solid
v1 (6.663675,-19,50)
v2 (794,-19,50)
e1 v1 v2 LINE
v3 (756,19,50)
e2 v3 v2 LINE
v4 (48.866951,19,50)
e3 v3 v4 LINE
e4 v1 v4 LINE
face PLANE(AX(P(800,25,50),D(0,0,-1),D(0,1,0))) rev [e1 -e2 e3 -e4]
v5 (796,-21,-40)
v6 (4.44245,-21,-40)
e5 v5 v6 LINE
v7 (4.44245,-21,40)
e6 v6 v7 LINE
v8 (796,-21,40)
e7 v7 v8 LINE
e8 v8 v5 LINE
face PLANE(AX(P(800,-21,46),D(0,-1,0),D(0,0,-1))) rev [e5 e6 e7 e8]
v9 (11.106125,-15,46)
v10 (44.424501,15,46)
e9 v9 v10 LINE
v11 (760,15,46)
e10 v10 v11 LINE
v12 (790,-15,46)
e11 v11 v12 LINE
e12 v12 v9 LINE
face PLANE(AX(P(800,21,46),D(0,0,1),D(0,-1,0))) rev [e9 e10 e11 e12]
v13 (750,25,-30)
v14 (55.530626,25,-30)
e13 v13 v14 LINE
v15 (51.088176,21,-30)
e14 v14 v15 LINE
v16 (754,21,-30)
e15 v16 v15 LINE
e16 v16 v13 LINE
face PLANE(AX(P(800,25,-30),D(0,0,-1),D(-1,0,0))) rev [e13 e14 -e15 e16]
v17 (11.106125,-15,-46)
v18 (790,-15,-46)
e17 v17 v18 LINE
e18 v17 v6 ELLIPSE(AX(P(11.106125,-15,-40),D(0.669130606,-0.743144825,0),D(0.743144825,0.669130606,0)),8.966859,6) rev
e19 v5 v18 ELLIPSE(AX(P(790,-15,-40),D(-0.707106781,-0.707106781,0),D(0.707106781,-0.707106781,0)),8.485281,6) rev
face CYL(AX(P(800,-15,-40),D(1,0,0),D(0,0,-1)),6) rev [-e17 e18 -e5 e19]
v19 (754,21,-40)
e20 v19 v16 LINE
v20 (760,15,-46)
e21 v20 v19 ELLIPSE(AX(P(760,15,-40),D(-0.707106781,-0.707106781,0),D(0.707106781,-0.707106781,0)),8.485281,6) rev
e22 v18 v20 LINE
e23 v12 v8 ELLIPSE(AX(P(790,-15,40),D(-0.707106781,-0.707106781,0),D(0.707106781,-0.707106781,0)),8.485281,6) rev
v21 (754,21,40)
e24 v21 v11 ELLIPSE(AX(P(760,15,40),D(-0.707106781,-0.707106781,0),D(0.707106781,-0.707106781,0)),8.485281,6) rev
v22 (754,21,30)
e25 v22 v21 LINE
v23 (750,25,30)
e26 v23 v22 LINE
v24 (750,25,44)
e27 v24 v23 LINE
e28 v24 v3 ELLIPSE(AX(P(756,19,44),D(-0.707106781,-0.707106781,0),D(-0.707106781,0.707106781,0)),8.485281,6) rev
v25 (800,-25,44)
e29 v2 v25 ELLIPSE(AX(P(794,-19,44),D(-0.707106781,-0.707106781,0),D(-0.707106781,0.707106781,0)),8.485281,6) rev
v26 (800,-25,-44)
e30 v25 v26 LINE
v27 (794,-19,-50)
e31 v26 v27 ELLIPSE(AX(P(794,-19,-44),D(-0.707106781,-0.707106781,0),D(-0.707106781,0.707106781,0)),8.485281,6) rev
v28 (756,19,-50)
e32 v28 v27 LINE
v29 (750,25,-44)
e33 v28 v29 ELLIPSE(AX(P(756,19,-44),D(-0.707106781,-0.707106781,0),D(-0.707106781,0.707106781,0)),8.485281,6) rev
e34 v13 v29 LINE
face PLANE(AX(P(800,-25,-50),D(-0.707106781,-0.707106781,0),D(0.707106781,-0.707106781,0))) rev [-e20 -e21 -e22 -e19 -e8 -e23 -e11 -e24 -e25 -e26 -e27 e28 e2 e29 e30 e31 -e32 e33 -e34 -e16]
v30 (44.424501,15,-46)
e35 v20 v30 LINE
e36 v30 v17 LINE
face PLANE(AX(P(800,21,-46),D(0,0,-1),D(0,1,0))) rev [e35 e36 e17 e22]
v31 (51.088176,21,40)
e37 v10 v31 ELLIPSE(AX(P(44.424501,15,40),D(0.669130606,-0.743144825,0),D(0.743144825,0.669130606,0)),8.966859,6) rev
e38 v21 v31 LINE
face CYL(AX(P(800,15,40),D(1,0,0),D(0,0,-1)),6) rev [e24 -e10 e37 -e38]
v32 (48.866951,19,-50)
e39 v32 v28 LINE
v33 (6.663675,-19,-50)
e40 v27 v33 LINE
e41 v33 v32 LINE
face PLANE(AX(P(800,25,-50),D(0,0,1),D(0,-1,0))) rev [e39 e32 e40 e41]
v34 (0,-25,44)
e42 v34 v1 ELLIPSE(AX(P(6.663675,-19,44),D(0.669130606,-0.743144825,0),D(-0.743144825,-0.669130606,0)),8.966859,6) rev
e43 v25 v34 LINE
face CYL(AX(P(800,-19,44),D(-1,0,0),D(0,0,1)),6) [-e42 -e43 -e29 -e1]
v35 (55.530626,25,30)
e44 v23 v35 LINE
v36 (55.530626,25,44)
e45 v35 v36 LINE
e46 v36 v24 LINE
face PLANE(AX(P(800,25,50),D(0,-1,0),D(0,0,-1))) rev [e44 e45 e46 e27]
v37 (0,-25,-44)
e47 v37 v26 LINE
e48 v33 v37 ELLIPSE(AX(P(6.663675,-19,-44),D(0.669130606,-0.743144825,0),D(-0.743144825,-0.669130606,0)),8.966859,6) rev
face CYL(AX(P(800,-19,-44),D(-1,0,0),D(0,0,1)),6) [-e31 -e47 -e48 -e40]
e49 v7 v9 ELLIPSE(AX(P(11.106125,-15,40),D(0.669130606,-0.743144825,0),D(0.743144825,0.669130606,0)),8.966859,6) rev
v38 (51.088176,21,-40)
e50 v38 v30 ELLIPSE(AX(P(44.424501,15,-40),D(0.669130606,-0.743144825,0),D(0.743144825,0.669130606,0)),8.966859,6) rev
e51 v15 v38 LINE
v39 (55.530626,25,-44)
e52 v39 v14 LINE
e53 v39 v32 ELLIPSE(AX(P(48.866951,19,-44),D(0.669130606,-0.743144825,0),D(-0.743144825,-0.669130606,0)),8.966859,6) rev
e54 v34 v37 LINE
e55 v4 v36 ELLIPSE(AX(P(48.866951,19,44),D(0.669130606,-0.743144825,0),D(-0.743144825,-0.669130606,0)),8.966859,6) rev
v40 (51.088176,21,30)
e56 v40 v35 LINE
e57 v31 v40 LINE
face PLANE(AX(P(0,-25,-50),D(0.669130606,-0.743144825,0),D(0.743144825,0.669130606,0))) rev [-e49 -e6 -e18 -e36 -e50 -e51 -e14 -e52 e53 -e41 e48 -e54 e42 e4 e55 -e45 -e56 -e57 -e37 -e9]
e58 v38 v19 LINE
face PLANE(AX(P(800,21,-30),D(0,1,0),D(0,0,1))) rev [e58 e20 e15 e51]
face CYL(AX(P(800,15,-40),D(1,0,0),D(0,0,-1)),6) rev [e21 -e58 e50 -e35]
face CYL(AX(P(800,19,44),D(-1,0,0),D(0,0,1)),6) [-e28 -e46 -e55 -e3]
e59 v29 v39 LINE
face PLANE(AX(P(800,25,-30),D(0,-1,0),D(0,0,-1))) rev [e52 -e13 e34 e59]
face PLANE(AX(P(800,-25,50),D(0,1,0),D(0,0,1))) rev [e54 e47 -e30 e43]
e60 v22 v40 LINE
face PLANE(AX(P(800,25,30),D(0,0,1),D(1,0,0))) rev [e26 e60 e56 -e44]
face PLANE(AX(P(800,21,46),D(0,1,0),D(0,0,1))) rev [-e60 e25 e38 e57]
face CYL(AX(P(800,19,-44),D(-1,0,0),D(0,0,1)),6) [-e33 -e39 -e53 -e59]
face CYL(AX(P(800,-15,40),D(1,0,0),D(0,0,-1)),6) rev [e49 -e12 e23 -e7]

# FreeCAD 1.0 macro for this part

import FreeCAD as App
import Part
import Sketcher
Q = App.Units.Quantity


def edges_at(feature, points):
    """Names of the edges that pass closest to the given points."""
    edges = feature.Shape.Edges
    near = lambda p: min(range(len(edges)), key=lambda i: edges[i].distToShape(Part.Vertex(*p))[0])
    return sorted({f"Edge{near(p) + 1}" for p in points})


def add_polygon(sketch, points):
    """Adds a closed chain of lines whose ends are joined by coincident constraints."""
    first, n = sketch.GeometryCount, len(points)
    for a, b in zip(points, points[1:] + points[:1]):
        sketch.addGeometry(Part.LineSegment(App.Vector(*a, 0), App.Vector(*b, 0)), False)
    for i in range(n):
        sketch.addConstraint(Sketcher.Constraint("Coincident", first + i, 2, first + (i + 1) % n, 1))

doc = App.newDocument("Part")
body = doc.addObject("PartDesign::Body", "Body")

sketch1 = body.newObject("Sketcher::SketchObject", "Sketch")
sketch1.AttachmentSupport = (doc.getObject("YZ_Plane"), [""])
sketch1.MapMode = "FlatFace"
add_polygon(sketch1, [(-21, 46), (21, 46), (21, 30), (25, 30), (25, 50), (-25, 50), (-25, -50), (25, -50), (25, -30), (21, -30), (21, -46), (-21, -46)])
sketch1.addConstraint([
    Sketcher.Constraint("Horizontal", 0),
    Sketcher.Constraint("Vertical", 1),
    Sketcher.Constraint("Horizontal", 2),
    Sketcher.Constraint("Vertical", 3),
    Sketcher.Constraint("Horizontal", 4),
    Sketcher.Constraint("Vertical", 5),
    Sketcher.Constraint("Horizontal", 6),
    Sketcher.Constraint("Vertical", 7),
    Sketcher.Constraint("Horizontal", 8),
    Sketcher.Constraint("Vertical", 9),
    Sketcher.Constraint("Horizontal", 10),
    Sketcher.Constraint("Vertical", 11),
    Sketcher.Constraint("Symmetric", 3, 2, 5, 2, -1, 1),
    Sketcher.Constraint("Symmetric", 0, 2, 10, 2, -1, 1),
    Sketcher.Constraint("Symmetric", 2, 2, 7, 2, -1),
    Sketcher.Constraint("Vertical", 1, 2, 8, 2),
    Sketcher.Constraint("DistanceX", 0, 1, 0, 2, Q("42 mm")),
    Sketcher.Constraint("DistanceX", 2, 1, 2, 2, Q("4 mm")),
    Sketcher.Constraint("DistanceY", 1, 2, 1, 1, Q("16 mm")),
    Sketcher.Constraint("DistanceY", 3, 1, 3, 2, Q("20 mm")),
    Sketcher.Constraint("DistanceY", 5, 2, 5, 1, Q("100 mm")),
])
pad1 = body.newObject("PartDesign::Pad", "Pad")
pad1.Profile = sketch1
pad1.Length = 800
doc.recompute()

fillet = body.newObject("PartDesign::Fillet", "Fillet")
fillet.Base = (pad1, edges_at(pad1, [
    (400, -25, -50),
    (400, -25, 50),
    (400, 25, 50),
    (400, 21, 46),
    (400, -21, 46),
    (400, -21, -46),
    (400, 21, -46),
    (400, 25, -50),
]))
fillet.Radius = 6

sketch2 = body.newObject("Sketcher::SketchObject", "Sketch001")
sketch2.AttachmentSupport = (doc.getObject("XY_Plane"), [""])
sketch2.MapMode = "FlatFace"
add_polygon(sketch2, [(0, -25), (185, 160), (-209, 105)])
add_polygon(sketch2, [(613, 162), (800, -25), (1064, 162)])
sketch2.addConstraint([
    Sketcher.Constraint("Horizontal", 5),
    Sketcher.Constraint("PointOnObject", 2, 2, -2),
    Sketcher.Constraint("Perpendicular", 0, 3),
    Sketcher.Constraint("Horizontal", 2, 2, 3, 2),
    Sketcher.Constraint("Angle", 0, Q("45 deg")),
    Sketcher.Constraint("DistanceY", 2, 2, -1, 1, Q("25 mm")),
    Sketcher.Constraint("DistanceX", -1, 1, 3, 2, Q("800 mm")),
    Sketcher.Constraint("DistanceX", 1, 2, 0, 2, Q("393.383002 mm")),
    Sketcher.Constraint("Distance", 0, Q("261.300788 mm")),
    Sketcher.Constraint("Distance", 4, Q("323.223589 mm")),
    Sketcher.Constraint("DistanceX", 5, 2, 5, 1, Q("450.558065 mm")),
    Sketcher.Constraint("Distance", 1, Q("397.185532 mm")),
])
pocket1 = body.newObject("PartDesign::Pocket", "Pocket")
pocket1.Profile = sketch2
pocket1.Length = 100
pocket1.Midplane = True

sketch3 = body.newObject("Sketcher::SketchObject", "Sketch002")
sketch3.AttachmentSupport = (doc.getObject("XY_Plane"), [""])
sketch3.MapMode = "FlatFace"
add_polygon(sketch3, [(0, -25), (86, 52), (-33, 68)])
sketch3.addConstraint([
    Sketcher.Constraint("PointOnObject", 2, 2, -2),
    Sketcher.Constraint("Angle", 0, Q("42 deg")),
    Sketcher.Constraint("DistanceY", 2, 2, -1, 1, Q("25 mm")),
    Sketcher.Constraint("DistanceX", -1, 1, 0, 2, Q("86.027501 mm")),
    Sketcher.Constraint("Distance", 1, Q("120.326249 mm")),
    Sketcher.Constraint("Distance", 2, Q("98.403178 mm")),
])
pocket2 = body.newObject("PartDesign::Pocket", "Pocket001")
pocket2.Profile = sketch3
pocket2.Length = 100
pocket2.Midplane = True

doc.recompute()
